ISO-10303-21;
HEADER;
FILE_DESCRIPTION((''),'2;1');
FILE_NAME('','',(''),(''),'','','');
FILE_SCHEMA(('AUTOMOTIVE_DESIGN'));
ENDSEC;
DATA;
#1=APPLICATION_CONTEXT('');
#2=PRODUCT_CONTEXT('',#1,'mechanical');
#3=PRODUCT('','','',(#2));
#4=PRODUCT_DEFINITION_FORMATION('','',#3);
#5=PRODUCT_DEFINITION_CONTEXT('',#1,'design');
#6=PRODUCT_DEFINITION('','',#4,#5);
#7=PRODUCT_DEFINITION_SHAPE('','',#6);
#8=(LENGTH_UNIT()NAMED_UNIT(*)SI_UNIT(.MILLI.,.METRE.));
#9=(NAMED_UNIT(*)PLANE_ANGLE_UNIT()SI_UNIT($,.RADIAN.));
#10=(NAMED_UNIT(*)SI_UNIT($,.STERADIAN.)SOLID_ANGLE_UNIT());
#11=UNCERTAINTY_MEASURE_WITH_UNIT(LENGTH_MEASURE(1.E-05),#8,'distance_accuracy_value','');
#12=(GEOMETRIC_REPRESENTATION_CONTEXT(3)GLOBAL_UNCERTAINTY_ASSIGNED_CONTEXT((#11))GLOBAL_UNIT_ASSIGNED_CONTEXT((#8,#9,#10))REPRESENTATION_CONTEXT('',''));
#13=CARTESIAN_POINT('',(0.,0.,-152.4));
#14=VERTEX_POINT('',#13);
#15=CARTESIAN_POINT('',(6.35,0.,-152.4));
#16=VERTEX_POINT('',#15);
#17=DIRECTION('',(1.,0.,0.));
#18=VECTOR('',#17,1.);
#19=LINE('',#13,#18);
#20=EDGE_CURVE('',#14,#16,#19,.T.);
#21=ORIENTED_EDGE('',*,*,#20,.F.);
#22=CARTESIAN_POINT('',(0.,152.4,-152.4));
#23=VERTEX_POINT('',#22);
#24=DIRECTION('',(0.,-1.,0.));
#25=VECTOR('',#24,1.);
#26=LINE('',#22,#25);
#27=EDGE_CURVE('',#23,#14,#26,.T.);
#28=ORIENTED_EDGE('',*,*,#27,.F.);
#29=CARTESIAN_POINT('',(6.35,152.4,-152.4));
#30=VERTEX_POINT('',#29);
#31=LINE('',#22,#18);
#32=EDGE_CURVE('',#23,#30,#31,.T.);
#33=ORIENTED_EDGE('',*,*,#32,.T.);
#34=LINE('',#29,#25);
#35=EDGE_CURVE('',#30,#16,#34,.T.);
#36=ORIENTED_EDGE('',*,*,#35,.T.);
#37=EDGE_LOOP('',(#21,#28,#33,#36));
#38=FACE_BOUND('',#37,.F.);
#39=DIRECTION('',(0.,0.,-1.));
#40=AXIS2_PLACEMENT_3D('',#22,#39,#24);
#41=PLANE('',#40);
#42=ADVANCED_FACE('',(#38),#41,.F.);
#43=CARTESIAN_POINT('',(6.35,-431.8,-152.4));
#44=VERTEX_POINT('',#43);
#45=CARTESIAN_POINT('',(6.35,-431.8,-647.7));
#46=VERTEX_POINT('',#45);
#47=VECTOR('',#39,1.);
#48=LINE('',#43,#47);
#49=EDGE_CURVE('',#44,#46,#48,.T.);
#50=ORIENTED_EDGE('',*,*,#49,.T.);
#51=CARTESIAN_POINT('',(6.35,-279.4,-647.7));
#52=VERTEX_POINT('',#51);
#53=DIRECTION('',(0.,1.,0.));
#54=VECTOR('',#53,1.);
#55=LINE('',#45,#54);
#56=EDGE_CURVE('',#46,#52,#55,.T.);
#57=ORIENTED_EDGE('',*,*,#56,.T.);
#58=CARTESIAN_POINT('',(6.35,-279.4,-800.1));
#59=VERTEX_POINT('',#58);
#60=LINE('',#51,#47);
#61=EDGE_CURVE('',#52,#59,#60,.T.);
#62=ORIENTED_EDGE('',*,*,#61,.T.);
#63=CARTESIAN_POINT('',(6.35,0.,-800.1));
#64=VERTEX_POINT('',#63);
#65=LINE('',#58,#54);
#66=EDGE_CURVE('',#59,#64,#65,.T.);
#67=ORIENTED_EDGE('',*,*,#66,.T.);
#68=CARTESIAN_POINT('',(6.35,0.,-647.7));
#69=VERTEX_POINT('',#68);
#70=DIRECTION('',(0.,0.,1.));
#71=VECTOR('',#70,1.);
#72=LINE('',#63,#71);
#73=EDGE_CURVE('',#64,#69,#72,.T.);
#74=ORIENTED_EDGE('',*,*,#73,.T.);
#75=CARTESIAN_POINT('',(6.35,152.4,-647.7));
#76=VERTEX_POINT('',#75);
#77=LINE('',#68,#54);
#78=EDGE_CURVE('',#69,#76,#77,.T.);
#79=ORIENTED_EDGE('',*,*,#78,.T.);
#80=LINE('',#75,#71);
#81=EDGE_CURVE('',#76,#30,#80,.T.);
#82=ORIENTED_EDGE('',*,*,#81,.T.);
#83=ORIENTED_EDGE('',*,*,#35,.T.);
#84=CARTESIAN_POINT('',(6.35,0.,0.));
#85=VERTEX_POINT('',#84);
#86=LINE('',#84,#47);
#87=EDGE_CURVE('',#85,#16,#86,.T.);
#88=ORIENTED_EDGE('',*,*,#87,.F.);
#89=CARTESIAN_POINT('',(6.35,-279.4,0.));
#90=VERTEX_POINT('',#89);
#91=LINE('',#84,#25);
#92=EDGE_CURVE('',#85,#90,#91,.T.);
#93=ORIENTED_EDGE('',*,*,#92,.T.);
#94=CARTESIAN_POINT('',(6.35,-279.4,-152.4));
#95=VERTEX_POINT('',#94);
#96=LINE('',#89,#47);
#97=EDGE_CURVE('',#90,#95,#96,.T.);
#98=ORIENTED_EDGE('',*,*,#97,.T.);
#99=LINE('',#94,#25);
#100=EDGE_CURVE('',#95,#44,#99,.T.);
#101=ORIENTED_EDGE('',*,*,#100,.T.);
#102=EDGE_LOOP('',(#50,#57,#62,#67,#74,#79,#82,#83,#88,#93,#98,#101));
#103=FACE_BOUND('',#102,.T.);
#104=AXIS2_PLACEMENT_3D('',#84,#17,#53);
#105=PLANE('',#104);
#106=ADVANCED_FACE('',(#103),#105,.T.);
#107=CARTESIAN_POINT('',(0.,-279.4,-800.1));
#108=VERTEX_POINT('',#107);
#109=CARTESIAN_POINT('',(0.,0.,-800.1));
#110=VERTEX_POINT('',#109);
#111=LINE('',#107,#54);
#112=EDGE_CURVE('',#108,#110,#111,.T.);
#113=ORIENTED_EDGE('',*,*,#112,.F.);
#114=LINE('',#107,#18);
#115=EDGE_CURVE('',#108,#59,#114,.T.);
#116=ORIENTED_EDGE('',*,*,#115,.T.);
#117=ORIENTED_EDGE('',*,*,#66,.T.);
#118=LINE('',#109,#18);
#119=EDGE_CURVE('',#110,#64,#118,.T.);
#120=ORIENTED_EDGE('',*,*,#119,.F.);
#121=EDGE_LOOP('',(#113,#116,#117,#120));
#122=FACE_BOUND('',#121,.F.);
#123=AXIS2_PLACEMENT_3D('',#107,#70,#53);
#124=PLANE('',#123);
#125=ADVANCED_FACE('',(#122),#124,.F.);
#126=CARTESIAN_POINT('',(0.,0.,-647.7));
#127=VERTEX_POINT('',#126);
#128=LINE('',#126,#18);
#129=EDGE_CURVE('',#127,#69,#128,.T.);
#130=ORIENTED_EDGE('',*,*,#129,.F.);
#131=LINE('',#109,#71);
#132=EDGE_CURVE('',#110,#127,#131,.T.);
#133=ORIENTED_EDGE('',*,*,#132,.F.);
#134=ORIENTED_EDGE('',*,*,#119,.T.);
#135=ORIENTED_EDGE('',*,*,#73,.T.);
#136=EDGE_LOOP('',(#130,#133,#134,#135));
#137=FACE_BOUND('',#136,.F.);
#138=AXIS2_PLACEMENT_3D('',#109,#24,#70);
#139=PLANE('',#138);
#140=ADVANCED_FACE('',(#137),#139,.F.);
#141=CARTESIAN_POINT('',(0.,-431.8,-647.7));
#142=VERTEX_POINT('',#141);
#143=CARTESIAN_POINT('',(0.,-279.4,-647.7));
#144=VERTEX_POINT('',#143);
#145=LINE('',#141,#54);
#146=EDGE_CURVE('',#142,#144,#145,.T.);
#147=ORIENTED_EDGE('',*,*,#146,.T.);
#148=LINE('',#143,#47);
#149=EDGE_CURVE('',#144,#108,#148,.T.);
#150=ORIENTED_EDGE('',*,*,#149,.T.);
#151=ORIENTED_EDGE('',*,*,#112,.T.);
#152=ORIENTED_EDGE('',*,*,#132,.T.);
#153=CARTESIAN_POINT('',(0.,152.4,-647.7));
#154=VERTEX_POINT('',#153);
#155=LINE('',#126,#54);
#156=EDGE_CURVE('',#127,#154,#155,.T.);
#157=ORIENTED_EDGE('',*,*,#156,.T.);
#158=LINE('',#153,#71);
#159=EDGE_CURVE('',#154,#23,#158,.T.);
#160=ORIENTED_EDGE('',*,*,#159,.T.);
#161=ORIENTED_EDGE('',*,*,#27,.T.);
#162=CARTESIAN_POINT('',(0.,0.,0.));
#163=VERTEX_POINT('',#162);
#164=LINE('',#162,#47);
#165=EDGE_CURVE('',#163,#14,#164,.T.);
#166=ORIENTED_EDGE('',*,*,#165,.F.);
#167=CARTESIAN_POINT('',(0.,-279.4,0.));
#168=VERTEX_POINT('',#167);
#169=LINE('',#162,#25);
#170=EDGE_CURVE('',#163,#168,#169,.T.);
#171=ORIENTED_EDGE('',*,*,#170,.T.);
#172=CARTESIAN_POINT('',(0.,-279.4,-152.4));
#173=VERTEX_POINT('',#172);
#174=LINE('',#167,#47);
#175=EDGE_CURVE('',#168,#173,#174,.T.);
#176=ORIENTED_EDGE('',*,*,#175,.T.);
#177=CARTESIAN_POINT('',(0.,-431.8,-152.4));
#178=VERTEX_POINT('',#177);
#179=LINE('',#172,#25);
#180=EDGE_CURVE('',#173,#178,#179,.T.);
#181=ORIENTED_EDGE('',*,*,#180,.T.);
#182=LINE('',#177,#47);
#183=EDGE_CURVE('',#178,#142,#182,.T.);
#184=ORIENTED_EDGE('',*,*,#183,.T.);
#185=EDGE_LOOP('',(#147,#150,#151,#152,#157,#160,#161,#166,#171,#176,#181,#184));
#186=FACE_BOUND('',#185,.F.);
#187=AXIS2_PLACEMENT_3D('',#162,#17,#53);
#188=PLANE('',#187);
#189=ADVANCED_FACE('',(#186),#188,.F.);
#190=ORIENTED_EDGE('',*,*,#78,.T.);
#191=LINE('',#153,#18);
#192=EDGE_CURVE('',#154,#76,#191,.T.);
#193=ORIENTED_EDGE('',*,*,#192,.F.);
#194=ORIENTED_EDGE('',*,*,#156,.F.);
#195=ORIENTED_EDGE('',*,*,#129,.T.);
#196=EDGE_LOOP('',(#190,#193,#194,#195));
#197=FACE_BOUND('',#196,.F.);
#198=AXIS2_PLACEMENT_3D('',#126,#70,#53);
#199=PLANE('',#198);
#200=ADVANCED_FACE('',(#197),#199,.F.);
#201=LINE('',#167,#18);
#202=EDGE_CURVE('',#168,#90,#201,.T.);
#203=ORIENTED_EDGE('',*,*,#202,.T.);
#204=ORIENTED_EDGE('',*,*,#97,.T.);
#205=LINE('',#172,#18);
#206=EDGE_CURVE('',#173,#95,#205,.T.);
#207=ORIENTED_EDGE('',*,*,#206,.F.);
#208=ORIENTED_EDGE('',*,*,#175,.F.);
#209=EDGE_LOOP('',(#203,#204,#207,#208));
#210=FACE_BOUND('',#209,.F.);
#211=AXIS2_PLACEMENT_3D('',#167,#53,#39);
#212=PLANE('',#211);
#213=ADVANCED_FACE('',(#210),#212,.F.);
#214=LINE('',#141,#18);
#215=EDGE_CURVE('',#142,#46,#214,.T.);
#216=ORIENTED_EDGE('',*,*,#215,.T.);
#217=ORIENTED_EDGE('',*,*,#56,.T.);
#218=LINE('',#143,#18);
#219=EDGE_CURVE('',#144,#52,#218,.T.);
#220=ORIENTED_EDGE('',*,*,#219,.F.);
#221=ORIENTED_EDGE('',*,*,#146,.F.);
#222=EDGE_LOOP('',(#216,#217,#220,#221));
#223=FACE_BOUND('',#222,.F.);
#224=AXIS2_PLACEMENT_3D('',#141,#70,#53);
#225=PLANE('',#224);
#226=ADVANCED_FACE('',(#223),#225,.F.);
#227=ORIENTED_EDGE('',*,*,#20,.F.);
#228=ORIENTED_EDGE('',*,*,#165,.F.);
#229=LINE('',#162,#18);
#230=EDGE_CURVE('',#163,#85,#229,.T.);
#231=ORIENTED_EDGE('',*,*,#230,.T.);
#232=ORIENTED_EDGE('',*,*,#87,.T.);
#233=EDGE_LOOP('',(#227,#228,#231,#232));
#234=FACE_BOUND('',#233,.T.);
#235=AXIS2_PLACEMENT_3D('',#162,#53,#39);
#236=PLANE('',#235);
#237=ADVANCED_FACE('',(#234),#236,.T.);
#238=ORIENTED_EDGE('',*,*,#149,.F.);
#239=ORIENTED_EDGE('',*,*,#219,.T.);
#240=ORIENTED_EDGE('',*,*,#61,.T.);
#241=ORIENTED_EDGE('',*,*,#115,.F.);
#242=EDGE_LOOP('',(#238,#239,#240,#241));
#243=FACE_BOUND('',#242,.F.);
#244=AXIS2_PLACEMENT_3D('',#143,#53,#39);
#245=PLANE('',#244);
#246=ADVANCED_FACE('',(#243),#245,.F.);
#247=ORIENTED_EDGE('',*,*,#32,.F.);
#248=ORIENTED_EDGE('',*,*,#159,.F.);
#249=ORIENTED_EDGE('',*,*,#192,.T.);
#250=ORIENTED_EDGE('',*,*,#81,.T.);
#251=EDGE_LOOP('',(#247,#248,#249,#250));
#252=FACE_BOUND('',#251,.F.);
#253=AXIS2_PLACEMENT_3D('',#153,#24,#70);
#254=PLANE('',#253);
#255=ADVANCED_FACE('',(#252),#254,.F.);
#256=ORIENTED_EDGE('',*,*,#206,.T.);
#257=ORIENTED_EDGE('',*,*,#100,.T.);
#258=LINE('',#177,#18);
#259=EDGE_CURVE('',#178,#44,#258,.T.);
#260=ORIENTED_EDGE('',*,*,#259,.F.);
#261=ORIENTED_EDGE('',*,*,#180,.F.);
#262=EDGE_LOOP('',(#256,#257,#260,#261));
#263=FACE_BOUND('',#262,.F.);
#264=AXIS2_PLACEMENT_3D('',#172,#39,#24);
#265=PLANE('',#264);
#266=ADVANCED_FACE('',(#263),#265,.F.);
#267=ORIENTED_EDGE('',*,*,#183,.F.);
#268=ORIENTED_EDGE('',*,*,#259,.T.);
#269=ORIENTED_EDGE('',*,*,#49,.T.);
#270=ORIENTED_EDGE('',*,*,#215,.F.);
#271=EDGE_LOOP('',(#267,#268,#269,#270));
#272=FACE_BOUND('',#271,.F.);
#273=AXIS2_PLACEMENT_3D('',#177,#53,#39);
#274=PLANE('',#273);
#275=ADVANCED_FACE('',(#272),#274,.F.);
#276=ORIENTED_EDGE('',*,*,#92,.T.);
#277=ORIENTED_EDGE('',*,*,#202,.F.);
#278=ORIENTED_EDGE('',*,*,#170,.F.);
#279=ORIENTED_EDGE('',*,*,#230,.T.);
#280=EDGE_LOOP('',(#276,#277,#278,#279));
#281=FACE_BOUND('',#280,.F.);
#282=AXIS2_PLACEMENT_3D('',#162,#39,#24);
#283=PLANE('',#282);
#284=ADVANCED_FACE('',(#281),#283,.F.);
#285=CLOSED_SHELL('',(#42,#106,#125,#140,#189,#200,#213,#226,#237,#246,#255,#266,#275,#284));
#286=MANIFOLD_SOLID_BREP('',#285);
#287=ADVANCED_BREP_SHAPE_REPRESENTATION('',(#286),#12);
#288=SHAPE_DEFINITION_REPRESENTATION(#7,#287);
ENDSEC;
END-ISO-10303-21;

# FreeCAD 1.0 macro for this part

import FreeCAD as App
import Part
import Sketcher

V = App.Vector
Q = App.Units.Quantity

doc = App.newDocument("Part")
body = doc.addObject("PartDesign::Body", "Body")

sketch1 = body.newObject("Sketcher::SketchObject", "Sketch")
sketch1.AttachmentSupport = (doc.getObject("YZ_Plane"), [""])
sketch1.MapMode = "FlatFace"
sketch1.addGeometry([
    Part.LineSegment(V(0, -152, 0), V(0, 0, 0)),
    Part.LineSegment(V(0, 0, 0), V(-279, 0, 0)),
    Part.LineSegment(V(-279, 0, 0), V(-279, -152, 0)),
    Part.LineSegment(V(-279, -152, 0), V(-432, -152, 0)),
    Part.LineSegment(V(-432, -152, 0), V(-432, -648, 0)),
    Part.LineSegment(V(-432, -648, 0), V(-279, -648, 0)),
    Part.LineSegment(V(-279, -648, 0), V(-279, -800, 0)),
    Part.LineSegment(V(-279, -800, 0), V(0, -800, 0)),
    Part.LineSegment(V(0, -800, 0), V(0, -648, 0)),
    Part.LineSegment(V(0, -648, 0), V(152, -648, 0)),
    Part.LineSegment(V(152, -648, 0), V(152, -152, 0)),
    Part.LineSegment(V(152, -152, 0), V(0, -152, 0)),
], False)
sketch1.addConstraint([
    Sketcher.Constraint("Coincident", 0, 2, 1, 1),
    Sketcher.Constraint("Coincident", 1, 2, 2, 1),
    Sketcher.Constraint("Coincident", 2, 2, 3, 1),
    Sketcher.Constraint("Coincident", 3, 2, 4, 1),
    Sketcher.Constraint("Coincident", 4, 2, 5, 1),
    Sketcher.Constraint("Coincident", 5, 2, 6, 1),
    Sketcher.Constraint("Coincident", 6, 2, 7, 1),
    Sketcher.Constraint("Coincident", 7, 2, 8, 1),
    Sketcher.Constraint("Coincident", 8, 2, 9, 1),
    Sketcher.Constraint("Coincident", 9, 2, 10, 1),
    Sketcher.Constraint("Coincident", 10, 2, 11, 1),
    Sketcher.Constraint("Coincident", 11, 2, 0, 1),
    Sketcher.Constraint("Vertical", 0),
    Sketcher.Constraint("Horizontal", 1),
    Sketcher.Constraint("Vertical", 2),
    Sketcher.Constraint("Horizontal", 3),
    Sketcher.Constraint("Vertical", 4),
    Sketcher.Constraint("Horizontal", 5),
    Sketcher.Constraint("Vertical", 6),
    Sketcher.Constraint("Horizontal", 7),
    Sketcher.Constraint("Vertical", 8),
    Sketcher.Constraint("Horizontal", 9),
    Sketcher.Constraint("Vertical", 10),
    Sketcher.Constraint("Horizontal", 11),
    Sketcher.Constraint("Coincident", 0, 2, -1, 1),
    Sketcher.Constraint("PointOnObject", 7, 2, -2),
    Sketcher.Constraint("Horizontal", 5, 2, 8, 2),
    Sketcher.Constraint("Horizontal", 3, 2, 10, 2),
    Sketcher.Constraint("Vertical", 2, 2, 5, 2),
    Sketcher.Constraint("Equal", 5, 9),
    Sketcher.Constraint("Equal", 11, 0),
    Sketcher.Constraint("Equal", 2, 6),
    Sketcher.Constraint("DistanceX", 1, 2, 1, 1, Q("11 in")),
    Sketcher.Constraint("DistanceX", 3, 2, 3, 1, Q("6 in")),
    Sketcher.Constraint("DistanceY", 4, 2, 4, 1, Q("19.5 in")),
])
pad1 = body.newObject("PartDesign::Pad", "Pad")
pad1.Profile = sketch1
pad1.Length = Q("0.25 in")

doc.recompute()
